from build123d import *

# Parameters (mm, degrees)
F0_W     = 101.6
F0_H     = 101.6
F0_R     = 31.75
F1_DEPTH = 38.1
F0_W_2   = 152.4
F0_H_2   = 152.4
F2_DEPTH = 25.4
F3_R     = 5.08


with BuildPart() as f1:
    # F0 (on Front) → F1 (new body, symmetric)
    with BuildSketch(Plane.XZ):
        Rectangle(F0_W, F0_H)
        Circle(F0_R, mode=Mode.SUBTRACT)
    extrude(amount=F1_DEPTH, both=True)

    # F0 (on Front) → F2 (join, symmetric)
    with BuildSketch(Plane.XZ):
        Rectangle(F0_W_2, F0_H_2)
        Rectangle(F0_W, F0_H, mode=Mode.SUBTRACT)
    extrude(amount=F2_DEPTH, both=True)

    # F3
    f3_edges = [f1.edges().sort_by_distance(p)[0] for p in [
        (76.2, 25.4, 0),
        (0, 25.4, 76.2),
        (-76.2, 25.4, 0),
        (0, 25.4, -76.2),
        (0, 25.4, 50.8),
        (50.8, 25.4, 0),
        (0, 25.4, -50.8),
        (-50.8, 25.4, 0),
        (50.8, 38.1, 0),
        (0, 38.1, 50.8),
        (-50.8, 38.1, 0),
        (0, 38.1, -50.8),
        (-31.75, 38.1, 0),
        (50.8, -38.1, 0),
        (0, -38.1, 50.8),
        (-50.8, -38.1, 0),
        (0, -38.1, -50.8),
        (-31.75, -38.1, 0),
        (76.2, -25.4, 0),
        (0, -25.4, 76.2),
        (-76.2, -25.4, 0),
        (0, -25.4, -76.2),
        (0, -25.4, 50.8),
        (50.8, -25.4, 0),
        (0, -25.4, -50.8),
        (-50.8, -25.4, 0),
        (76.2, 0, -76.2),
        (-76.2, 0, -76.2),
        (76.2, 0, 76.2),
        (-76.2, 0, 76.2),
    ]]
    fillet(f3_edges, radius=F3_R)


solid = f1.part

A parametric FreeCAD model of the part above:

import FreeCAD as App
import Part
import Sketcher
from FreeCAD import Vector
Q = App.Units.Quantity


def edges_at(feature, points):
    """Names of the edges that pass closest to the given points."""
    edges = feature.Shape.Edges
    near = lambda p: min(range(len(edges)), key=lambda i: edges[i].distToShape(Part.Vertex(*p))[0])
    return sorted({f"Edge{near(p) + 1}" for p in points})


def add_polygon(sketch, points):
    """Adds a closed chain of lines whose ends are joined by coincident constraints."""
    first, n = sketch.GeometryCount, len(points)
    for a, b in zip(points, points[1:] + points[:1]):
        sketch.addGeometry(Part.LineSegment(App.Vector(*a, 0), App.Vector(*b, 0)), False)
    for i in range(n):
        sketch.addConstraint(Sketcher.Constraint("Coincident", first + i, 2, first + (i + 1) % n, 1))

doc = App.newDocument("Part")
params = doc.addObject("Spreadsheet::Sheet", "Params")
for row, (alias, value) in enumerate([
    ("sketch1_diameter", "2.5 in"),
    ("sketch1_width", "4 in"),
    ("pad1_length", "3 in"),
    ("sketch2_width", "6 in"),
    ("sketch2_width2", "4 in"),
    ("pad2_length", "2 in"),
    ("fillet_radius", "0.2 in"),
], start=1):
    params.set(f"A{row}", alias)
    params.set(f"B{row}", "=" + value)
    params.setAlias(f"B{row}", alias)

body = doc.addObject("PartDesign::Body", "Body")

# Sketch on XZ plane
sketch1 = body.newObject("Sketcher::SketchObject", "Sketch")
sketch1.AttachmentSupport = (doc.getObject("XZ_Plane"), [""])
sketch1.MapMode = "FlatFace"
add_polygon(sketch1, [(-51, 51), (-51, -51), (51, -51), (51, 51)])  # lines 0-3
sketch1.addGeometry(Part.Circle(Vector(0, 0, 0), Vector(0, 0, 1), 32), False)  # 4
sketch1.addConstraint(Sketcher.Constraint("Vertical", 0))
sketch1.addConstraint(Sketcher.Constraint("Horizontal", 1))
sketch1.addConstraint(Sketcher.Constraint("Vertical", 2))
sketch1.addConstraint(Sketcher.Constraint("Horizontal", 3))
sketch1.addConstraint(Sketcher.Constraint("Coincident", 4, 3, -1, 1))
sketch1.addConstraint(Sketcher.Constraint("Symmetric", 0, 2, 2, 2, -1, 1))
sketch1.addConstraint(Sketcher.Constraint("Equal", 3, 0))
sketch1.addConstraint(Sketcher.Constraint("Diameter", 4, Q("2.5 in")))
sketch1.addConstraint(Sketcher.Constraint("DistanceX", 1, 1, 1, 2, Q("4 in")))
sketch1.setExpression("Constraints[11]", "Params.sketch1_diameter")
sketch1.setExpression("Constraints[12]", "Params.sketch1_width")
pad1 = body.newObject("PartDesign::Pad", "Pad")
pad1.Profile = sketch1
pad1.setExpression("Length", "Params.pad1_length")
pad1.Midplane = True

# Sketch on XZ plane
sketch2 = body.newObject("Sketcher::SketchObject", "Sketch001")
sketch2.AttachmentSupport = (doc.getObject("XZ_Plane"), [""])
sketch2.MapMode = "FlatFace"
add_polygon(sketch2, [(-76, 76), (-76, -76), (76, -76), (76, 76)])  # lines 0-3
add_polygon(sketch2, [(51, -51), (-51, -51), (-51, 51), (51, 51)])  # lines 4-7
sketch2.addConstraint(Sketcher.Constraint("Vertical", 0))
sketch2.addConstraint(Sketcher.Constraint("Horizontal", 1))
sketch2.addConstraint(Sketcher.Constraint("Vertical", 2))
sketch2.addConstraint(Sketcher.Constraint("Horizontal", 3))
sketch2.addConstraint(Sketcher.Constraint("Horizontal", 4))
sketch2.addConstraint(Sketcher.Constraint("Vertical", 5))
sketch2.addConstraint(Sketcher.Constraint("Horizontal", 6))
sketch2.addConstraint(Sketcher.Constraint("Vertical", 7))
sketch2.addConstraint(Sketcher.Constraint("Symmetric", 0, 2, 2, 2, -1, 1))
sketch2.addConstraint(Sketcher.Constraint("Symmetric", 4, 2, 6, 2, -1, 1))
sketch2.addConstraint(Sketcher.Constraint("Equal", 3, 0))
sketch2.addConstraint(Sketcher.Constraint("Equal", 6, 5))
sketch2.addConstraint(Sketcher.Constraint("DistanceX", 1, 1, 1, 2, Q("6 in")))
sketch2.addConstraint(Sketcher.Constraint("DistanceX", 4, 2, 4, 1, Q("4 in")))
sketch2.setExpression("Constraints[20]", "Params.sketch2_width")
sketch2.setExpression("Constraints[21]", "Params.sketch2_width2")
pad2 = body.newObject("PartDesign::Pad", "Pad001")
pad2.Profile = sketch2
pad2.setExpression("Length", "Params.pad2_length")
pad2.Midplane = True
doc.recompute()

fillet = body.newObject("PartDesign::Fillet", "Fillet")
fillet.Base = (pad2, edges_at(pad2, [
    (76.2, 25.4, 0),
    (0, 25.4, 76.2),
    (-76.2, 25.4, 0),
    (0, 25.4, -76.2),
    (0, 25.4, 50.8),
    (50.8, 25.4, 0),
    (0, 25.4, -50.8),
    (-50.8, 25.4, 0),
    (50.8, 38.1, 0),
    (0, 38.1, 50.8),
    (-50.8, 38.1, 0),
    (0, 38.1, -50.8),
    (-31.75, 38.1, 0),
    (50.8, -38.1, 0),
    (0, -38.1, 50.8),
    (-50.8, -38.1, 0),
    (0, -38.1, -50.8),
    (-31.75, -38.1, 0),
    (76.2, -25.4, 0),
    (0, -25.4, 76.2),
    (-76.2, -25.4, 0),
    (0, -25.4, -76.2),
    (0, -25.4, 50.8),
    (50.8, -25.4, 0),
    (0, -25.4, -50.8),
    (-50.8, -25.4, 0),
    (76.2, 0, -76.2),
    (-76.2, 0, -76.2),
    (76.2, 0, 76.2),
    (-76.2, 0, 76.2),
]))
fillet.setExpression("Radius", "Params.fillet_radius")

doc.recompute()
